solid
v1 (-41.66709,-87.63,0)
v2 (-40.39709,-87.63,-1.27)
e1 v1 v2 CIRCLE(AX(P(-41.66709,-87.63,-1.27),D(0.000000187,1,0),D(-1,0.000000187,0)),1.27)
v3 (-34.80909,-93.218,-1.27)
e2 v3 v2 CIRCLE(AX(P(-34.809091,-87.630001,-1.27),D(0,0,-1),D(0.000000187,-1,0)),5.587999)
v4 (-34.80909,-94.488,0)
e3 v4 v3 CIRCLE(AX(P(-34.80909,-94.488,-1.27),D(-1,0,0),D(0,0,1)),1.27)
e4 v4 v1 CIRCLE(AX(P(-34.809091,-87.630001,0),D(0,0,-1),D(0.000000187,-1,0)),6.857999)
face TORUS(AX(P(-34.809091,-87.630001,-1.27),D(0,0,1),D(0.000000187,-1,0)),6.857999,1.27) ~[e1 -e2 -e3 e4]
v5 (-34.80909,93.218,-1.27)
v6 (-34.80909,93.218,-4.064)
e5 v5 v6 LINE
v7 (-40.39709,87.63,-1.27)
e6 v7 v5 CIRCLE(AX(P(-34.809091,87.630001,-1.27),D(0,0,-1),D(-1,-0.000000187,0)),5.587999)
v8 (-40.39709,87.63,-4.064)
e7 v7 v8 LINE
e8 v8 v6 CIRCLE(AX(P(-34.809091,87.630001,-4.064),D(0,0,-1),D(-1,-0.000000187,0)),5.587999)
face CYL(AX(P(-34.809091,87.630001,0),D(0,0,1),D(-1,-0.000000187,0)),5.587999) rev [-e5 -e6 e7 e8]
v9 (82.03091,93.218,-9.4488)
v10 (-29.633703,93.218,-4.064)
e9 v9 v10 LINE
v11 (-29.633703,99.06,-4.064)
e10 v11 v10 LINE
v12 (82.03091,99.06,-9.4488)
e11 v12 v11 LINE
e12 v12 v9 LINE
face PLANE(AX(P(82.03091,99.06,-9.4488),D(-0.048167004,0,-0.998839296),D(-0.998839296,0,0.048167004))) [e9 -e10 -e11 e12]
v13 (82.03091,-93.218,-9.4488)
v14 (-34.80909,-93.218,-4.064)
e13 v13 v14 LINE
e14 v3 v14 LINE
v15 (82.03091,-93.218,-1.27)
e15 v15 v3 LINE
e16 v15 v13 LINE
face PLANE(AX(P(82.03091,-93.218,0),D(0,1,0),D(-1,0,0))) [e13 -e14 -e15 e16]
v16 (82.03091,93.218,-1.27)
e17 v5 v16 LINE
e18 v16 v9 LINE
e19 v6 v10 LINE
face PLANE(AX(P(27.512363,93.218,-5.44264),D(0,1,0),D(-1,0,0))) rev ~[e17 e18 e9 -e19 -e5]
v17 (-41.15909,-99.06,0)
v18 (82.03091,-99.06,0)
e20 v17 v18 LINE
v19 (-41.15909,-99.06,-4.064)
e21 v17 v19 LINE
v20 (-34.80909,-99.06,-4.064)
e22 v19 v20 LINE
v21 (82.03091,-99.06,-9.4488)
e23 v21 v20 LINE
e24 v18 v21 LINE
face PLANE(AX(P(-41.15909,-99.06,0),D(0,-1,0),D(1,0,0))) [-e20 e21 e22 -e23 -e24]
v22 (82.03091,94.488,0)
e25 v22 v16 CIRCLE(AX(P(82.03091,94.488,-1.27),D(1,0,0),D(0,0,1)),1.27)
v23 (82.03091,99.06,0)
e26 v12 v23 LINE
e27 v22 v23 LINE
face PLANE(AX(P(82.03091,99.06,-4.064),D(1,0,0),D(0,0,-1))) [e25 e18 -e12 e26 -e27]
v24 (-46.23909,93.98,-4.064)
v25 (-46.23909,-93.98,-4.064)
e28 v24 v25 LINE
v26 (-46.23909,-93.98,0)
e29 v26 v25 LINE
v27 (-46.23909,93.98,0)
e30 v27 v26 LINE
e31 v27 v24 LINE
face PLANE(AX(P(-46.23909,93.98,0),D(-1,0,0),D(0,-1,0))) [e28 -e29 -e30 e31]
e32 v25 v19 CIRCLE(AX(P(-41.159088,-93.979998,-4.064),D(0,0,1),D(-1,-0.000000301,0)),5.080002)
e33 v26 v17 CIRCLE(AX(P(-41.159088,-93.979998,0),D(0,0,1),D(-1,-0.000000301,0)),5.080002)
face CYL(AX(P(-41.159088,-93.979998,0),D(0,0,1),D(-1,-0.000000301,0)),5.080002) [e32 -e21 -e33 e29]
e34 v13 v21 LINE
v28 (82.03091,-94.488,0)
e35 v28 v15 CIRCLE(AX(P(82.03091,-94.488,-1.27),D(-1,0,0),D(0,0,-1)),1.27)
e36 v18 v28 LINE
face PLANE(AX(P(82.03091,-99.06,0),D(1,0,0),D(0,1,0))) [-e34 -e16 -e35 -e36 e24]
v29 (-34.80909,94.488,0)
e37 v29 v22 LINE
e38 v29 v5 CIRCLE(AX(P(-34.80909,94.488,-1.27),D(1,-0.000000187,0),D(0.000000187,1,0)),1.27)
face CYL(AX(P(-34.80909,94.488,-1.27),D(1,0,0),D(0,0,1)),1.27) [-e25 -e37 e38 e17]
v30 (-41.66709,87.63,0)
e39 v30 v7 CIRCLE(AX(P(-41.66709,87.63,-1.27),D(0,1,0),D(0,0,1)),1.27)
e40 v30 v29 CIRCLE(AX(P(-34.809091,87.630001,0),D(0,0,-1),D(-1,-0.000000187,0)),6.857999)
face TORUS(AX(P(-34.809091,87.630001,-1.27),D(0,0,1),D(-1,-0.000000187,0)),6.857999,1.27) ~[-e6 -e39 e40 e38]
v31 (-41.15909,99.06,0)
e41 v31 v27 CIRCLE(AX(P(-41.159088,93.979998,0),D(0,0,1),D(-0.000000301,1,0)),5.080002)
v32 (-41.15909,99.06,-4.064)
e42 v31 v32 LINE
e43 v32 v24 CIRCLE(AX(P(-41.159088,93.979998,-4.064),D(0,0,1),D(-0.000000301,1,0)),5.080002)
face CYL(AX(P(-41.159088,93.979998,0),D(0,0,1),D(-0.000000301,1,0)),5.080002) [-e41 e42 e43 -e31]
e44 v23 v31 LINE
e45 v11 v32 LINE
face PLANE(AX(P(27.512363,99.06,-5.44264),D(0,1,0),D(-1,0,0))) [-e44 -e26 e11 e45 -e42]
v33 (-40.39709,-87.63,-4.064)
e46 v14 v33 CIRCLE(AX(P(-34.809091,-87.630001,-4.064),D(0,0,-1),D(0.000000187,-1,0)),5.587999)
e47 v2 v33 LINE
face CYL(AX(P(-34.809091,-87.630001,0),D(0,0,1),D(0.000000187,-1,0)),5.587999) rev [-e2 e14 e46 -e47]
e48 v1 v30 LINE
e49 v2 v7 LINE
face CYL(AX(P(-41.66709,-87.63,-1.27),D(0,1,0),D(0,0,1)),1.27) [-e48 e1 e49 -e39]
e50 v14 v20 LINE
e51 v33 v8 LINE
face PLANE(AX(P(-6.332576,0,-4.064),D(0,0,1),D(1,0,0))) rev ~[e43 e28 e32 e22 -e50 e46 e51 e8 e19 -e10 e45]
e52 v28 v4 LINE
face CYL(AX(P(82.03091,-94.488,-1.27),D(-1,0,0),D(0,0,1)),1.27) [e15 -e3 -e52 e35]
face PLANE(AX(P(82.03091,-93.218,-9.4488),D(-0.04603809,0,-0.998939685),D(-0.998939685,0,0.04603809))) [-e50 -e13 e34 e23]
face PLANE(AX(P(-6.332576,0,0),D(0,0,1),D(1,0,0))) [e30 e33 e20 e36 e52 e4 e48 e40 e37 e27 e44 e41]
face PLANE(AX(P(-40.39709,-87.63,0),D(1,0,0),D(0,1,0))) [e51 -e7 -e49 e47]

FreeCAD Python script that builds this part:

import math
import FreeCAD as App
import Part
import Sketcher

V = App.Vector
Q = App.Units.Quantity


def edges_at(feature, points):
    """Names of the edges that pass closest to the given points."""
    edges = feature.Shape.Edges
    near = lambda p: min(range(len(edges)), key=lambda i: edges[i].distToShape(Part.Vertex(*p))[0])
    return sorted({f"Edge{near(p) + 1}" for p in points})

doc = App.newDocument("Part")
body = doc.addObject("PartDesign::Body", "Body")

sketch1 = body.newObject("Sketcher::SketchObject", "Sketch")
sketch1.AttachmentSupport = (doc.getObject("XY_Plane"), [""])
sketch1.MapMode = "FlatFace"
sketch1.addGeometry([
    Part.LineSegment(V(-41, -99, 0), V(82, -99, 0)),
    Part.LineSegment(V(82, -99, 0), V(82, -93, 0)),
    Part.LineSegment(V(82, -93, 0), V(-35, -93, 0)),
    Part.ArcOfCircle(Part.Circle(V(-35, -88, 0), V(0, 0, 1), 6), math.radians(180), math.radians(270)),
    Part.LineSegment(V(-40, -88, 0), V(-40, 88, 0)),
    Part.ArcOfCircle(Part.Circle(V(-35, 88, 0), V(0, 0, 1), 6), math.radians(90), math.radians(180)),
    Part.LineSegment(V(-35, 93, 0), V(82, 93, 0)),
    Part.LineSegment(V(82, 93, 0), V(82, 99, 0)),
    Part.LineSegment(V(82, 99, 0), V(-41, 99, 0)),
    Part.ArcOfCircle(Part.Circle(V(-41, 94, 0), V(0, 0, 1), 5), math.radians(90), math.radians(180)),
    Part.LineSegment(V(-46, 94, 0), V(-46, -94, 0)),
    Part.ArcOfCircle(Part.Circle(V(-41, -94, 0), V(0, 0, 1), 5), math.radians(-180), math.radians(-90)),
], False)
sketch1.addConstraint([
    Sketcher.Constraint("Coincident", 0, 2, 1, 1),
    Sketcher.Constraint("Coincident", 1, 2, 2, 1),
    Sketcher.Constraint("Tangent", 2, 2, 3, 2),
    Sketcher.Constraint("Tangent", 3, 1, 4, 1),
    Sketcher.Constraint("Tangent", 4, 2, 5, 2),
    Sketcher.Constraint("Tangent", 5, 1, 6, 1),
    Sketcher.Constraint("Coincident", 6, 2, 7, 1),
    Sketcher.Constraint("Coincident", 7, 2, 8, 1),
    Sketcher.Constraint("Tangent", 8, 2, 9, 1),
    Sketcher.Constraint("Tangent", 9, 2, 10, 1),
    Sketcher.Constraint("Tangent", 10, 2, 11, 1),
    Sketcher.Constraint("Tangent", 11, 2, 0, 1),
    Sketcher.Constraint("Horizontal", 0),
    Sketcher.Constraint("Vertical", 1),
    Sketcher.Constraint("Horizontal", 2),
    Sketcher.Constraint("Vertical", 4),
    Sketcher.Constraint("Horizontal", 6),
    Sketcher.Constraint("Vertical", 7),
    Sketcher.Constraint("Horizontal", 8),
    Sketcher.Constraint("Vertical", 10),
    Sketcher.Constraint("Equal", 3, 5),
    Sketcher.Constraint("Equal", 9, 11),
    Sketcher.Constraint("Symmetric", 1, 2, 6, 2, -1),
    Sketcher.Constraint("Equal", 1, 7),
    Sketcher.Constraint("Radius", 9, Q("0.2000001 in")),
    Sketcher.Constraint("Radius", 3, Q("0.22 in")),
    Sketcher.Constraint("DistanceX", 2, 2, 2, 1, Q("4.6 in")),
    Sketcher.Constraint("DistanceY", 4, 1, 4, 2, Q("6.9 in")),
    Sketcher.Constraint("DistanceY", 10, 2, 10, 1, Q("7.4 in")),
    Sketcher.Constraint("DistanceX", 0, 1, 0, 2, Q("4.85 in")),
    Sketcher.Constraint("DistanceX", 3, 3, -1, 1, 34.809091),
])
pad1 = body.newObject("PartDesign::Pad", "Pad")
pad1.Profile = sketch1
pad1.Length = Q("0.16 in")
pad1.Reversed = True

sketch2 = body.newObject("Sketcher::SketchObject", "Sketch001")
sketch2.AttachmentSupport = (doc.getObject("XZ_Plane"), [""])
sketch2.MapMode = "FlatFace"
sketch2.AttachmentOffset = App.Placement(V(0, 0, -3.9 * 25.4), App.Rotation())
sketch2.addGeometry([
    Part.LineSegment(V(-30, -4, 0), V(82, -4, 0)),
    Part.LineSegment(V(82, -4, 0), V(82, -9, 0)),
    Part.LineSegment(V(82, -9, 0), V(-30, -4, 0)),
], False)
sketch2.addConstraint([
    Sketcher.Constraint("Coincident", 0, 2, 1, 1),
    Sketcher.Constraint("Coincident", 1, 2, 2, 1),
    Sketcher.Constraint("Coincident", 2, 2, 0, 1),
    Sketcher.Constraint("Horizontal", 0),
    Sketcher.Constraint("Vertical", 1),
    Sketcher.Constraint("DistanceY", 1, 2, 1, 1, Q("0.212 in")),
    Sketcher.Constraint("DistanceY", 0, 2, -1, 1, Q("0.16 in")),
    Sketcher.Constraint("DistanceX", 0, 1, 0, 2, 111.664613),
    Sketcher.Constraint("DistanceX", -1, 1, 0, 2, 82.03091),
])
pad2 = body.newObject("PartDesign::Pad", "Pad001")
pad2.Profile = sketch2
pad2.Length = Q("0.23 in")

sketch3 = body.newObject("Sketcher::SketchObject", "Sketch002")
sketch3.AttachmentSupport = (doc.getObject("XZ_Plane"), [""])
sketch3.MapMode = "FlatFace"
sketch3.AttachmentOffset = App.Placement(V(0, 0, 3.67 * 25.4), App.Rotation())
sketch3.addGeometry([
    Part.LineSegment(V(-34.8, 0, 0), V(82, 0, 0)),
    Part.LineSegment(V(82, 0, 0), V(82, -9.4, 0)),
    Part.LineSegment(V(82, -9.4, 0), V(-34.8, -4.1, 0)),
    Part.LineSegment(V(-34.8, -4.1, 0), V(-34.8, 0, 0)),
], False)
sketch3.addConstraint([
    Sketcher.Constraint("Coincident", 0, 2, 1, 1),
    Sketcher.Constraint("Coincident", 1, 2, 2, 1),
    Sketcher.Constraint("Coincident", 2, 2, 3, 1),
    Sketcher.Constraint("Coincident", 3, 2, 0, 1),
    Sketcher.Constraint("Horizontal", 0),
    Sketcher.Constraint("Vertical", 1),
    Sketcher.Constraint("Vertical", 3),
    Sketcher.Constraint("PointOnObject", 0, 2, -1),
    Sketcher.Constraint("DistanceX", 0, 1, 0, 2, Q("4.6 in")),
    Sketcher.Constraint("DistanceY", 3, 1, 3, 2, Q("0.16 in")),
    Sketcher.Constraint("DistanceY", 1, 2, 1, 1, Q("0.372 in")),
    Sketcher.Constraint("DistanceX", -1, 1, 0, 2, 82.03091),
])
pad3 = body.newObject("PartDesign::Pad", "Pad002")
pad3.Profile = sketch3
pad3.Length = Q("0.23 in")
doc.recompute()

fillet = body.newObject("PartDesign::Fillet", "Fillet")
fillet.Base = (pad3, edges_at(pad3, [(23.611, 93.218, 0)]))
fillet.Radius = Q("0.05 in")

doc.recompute()
